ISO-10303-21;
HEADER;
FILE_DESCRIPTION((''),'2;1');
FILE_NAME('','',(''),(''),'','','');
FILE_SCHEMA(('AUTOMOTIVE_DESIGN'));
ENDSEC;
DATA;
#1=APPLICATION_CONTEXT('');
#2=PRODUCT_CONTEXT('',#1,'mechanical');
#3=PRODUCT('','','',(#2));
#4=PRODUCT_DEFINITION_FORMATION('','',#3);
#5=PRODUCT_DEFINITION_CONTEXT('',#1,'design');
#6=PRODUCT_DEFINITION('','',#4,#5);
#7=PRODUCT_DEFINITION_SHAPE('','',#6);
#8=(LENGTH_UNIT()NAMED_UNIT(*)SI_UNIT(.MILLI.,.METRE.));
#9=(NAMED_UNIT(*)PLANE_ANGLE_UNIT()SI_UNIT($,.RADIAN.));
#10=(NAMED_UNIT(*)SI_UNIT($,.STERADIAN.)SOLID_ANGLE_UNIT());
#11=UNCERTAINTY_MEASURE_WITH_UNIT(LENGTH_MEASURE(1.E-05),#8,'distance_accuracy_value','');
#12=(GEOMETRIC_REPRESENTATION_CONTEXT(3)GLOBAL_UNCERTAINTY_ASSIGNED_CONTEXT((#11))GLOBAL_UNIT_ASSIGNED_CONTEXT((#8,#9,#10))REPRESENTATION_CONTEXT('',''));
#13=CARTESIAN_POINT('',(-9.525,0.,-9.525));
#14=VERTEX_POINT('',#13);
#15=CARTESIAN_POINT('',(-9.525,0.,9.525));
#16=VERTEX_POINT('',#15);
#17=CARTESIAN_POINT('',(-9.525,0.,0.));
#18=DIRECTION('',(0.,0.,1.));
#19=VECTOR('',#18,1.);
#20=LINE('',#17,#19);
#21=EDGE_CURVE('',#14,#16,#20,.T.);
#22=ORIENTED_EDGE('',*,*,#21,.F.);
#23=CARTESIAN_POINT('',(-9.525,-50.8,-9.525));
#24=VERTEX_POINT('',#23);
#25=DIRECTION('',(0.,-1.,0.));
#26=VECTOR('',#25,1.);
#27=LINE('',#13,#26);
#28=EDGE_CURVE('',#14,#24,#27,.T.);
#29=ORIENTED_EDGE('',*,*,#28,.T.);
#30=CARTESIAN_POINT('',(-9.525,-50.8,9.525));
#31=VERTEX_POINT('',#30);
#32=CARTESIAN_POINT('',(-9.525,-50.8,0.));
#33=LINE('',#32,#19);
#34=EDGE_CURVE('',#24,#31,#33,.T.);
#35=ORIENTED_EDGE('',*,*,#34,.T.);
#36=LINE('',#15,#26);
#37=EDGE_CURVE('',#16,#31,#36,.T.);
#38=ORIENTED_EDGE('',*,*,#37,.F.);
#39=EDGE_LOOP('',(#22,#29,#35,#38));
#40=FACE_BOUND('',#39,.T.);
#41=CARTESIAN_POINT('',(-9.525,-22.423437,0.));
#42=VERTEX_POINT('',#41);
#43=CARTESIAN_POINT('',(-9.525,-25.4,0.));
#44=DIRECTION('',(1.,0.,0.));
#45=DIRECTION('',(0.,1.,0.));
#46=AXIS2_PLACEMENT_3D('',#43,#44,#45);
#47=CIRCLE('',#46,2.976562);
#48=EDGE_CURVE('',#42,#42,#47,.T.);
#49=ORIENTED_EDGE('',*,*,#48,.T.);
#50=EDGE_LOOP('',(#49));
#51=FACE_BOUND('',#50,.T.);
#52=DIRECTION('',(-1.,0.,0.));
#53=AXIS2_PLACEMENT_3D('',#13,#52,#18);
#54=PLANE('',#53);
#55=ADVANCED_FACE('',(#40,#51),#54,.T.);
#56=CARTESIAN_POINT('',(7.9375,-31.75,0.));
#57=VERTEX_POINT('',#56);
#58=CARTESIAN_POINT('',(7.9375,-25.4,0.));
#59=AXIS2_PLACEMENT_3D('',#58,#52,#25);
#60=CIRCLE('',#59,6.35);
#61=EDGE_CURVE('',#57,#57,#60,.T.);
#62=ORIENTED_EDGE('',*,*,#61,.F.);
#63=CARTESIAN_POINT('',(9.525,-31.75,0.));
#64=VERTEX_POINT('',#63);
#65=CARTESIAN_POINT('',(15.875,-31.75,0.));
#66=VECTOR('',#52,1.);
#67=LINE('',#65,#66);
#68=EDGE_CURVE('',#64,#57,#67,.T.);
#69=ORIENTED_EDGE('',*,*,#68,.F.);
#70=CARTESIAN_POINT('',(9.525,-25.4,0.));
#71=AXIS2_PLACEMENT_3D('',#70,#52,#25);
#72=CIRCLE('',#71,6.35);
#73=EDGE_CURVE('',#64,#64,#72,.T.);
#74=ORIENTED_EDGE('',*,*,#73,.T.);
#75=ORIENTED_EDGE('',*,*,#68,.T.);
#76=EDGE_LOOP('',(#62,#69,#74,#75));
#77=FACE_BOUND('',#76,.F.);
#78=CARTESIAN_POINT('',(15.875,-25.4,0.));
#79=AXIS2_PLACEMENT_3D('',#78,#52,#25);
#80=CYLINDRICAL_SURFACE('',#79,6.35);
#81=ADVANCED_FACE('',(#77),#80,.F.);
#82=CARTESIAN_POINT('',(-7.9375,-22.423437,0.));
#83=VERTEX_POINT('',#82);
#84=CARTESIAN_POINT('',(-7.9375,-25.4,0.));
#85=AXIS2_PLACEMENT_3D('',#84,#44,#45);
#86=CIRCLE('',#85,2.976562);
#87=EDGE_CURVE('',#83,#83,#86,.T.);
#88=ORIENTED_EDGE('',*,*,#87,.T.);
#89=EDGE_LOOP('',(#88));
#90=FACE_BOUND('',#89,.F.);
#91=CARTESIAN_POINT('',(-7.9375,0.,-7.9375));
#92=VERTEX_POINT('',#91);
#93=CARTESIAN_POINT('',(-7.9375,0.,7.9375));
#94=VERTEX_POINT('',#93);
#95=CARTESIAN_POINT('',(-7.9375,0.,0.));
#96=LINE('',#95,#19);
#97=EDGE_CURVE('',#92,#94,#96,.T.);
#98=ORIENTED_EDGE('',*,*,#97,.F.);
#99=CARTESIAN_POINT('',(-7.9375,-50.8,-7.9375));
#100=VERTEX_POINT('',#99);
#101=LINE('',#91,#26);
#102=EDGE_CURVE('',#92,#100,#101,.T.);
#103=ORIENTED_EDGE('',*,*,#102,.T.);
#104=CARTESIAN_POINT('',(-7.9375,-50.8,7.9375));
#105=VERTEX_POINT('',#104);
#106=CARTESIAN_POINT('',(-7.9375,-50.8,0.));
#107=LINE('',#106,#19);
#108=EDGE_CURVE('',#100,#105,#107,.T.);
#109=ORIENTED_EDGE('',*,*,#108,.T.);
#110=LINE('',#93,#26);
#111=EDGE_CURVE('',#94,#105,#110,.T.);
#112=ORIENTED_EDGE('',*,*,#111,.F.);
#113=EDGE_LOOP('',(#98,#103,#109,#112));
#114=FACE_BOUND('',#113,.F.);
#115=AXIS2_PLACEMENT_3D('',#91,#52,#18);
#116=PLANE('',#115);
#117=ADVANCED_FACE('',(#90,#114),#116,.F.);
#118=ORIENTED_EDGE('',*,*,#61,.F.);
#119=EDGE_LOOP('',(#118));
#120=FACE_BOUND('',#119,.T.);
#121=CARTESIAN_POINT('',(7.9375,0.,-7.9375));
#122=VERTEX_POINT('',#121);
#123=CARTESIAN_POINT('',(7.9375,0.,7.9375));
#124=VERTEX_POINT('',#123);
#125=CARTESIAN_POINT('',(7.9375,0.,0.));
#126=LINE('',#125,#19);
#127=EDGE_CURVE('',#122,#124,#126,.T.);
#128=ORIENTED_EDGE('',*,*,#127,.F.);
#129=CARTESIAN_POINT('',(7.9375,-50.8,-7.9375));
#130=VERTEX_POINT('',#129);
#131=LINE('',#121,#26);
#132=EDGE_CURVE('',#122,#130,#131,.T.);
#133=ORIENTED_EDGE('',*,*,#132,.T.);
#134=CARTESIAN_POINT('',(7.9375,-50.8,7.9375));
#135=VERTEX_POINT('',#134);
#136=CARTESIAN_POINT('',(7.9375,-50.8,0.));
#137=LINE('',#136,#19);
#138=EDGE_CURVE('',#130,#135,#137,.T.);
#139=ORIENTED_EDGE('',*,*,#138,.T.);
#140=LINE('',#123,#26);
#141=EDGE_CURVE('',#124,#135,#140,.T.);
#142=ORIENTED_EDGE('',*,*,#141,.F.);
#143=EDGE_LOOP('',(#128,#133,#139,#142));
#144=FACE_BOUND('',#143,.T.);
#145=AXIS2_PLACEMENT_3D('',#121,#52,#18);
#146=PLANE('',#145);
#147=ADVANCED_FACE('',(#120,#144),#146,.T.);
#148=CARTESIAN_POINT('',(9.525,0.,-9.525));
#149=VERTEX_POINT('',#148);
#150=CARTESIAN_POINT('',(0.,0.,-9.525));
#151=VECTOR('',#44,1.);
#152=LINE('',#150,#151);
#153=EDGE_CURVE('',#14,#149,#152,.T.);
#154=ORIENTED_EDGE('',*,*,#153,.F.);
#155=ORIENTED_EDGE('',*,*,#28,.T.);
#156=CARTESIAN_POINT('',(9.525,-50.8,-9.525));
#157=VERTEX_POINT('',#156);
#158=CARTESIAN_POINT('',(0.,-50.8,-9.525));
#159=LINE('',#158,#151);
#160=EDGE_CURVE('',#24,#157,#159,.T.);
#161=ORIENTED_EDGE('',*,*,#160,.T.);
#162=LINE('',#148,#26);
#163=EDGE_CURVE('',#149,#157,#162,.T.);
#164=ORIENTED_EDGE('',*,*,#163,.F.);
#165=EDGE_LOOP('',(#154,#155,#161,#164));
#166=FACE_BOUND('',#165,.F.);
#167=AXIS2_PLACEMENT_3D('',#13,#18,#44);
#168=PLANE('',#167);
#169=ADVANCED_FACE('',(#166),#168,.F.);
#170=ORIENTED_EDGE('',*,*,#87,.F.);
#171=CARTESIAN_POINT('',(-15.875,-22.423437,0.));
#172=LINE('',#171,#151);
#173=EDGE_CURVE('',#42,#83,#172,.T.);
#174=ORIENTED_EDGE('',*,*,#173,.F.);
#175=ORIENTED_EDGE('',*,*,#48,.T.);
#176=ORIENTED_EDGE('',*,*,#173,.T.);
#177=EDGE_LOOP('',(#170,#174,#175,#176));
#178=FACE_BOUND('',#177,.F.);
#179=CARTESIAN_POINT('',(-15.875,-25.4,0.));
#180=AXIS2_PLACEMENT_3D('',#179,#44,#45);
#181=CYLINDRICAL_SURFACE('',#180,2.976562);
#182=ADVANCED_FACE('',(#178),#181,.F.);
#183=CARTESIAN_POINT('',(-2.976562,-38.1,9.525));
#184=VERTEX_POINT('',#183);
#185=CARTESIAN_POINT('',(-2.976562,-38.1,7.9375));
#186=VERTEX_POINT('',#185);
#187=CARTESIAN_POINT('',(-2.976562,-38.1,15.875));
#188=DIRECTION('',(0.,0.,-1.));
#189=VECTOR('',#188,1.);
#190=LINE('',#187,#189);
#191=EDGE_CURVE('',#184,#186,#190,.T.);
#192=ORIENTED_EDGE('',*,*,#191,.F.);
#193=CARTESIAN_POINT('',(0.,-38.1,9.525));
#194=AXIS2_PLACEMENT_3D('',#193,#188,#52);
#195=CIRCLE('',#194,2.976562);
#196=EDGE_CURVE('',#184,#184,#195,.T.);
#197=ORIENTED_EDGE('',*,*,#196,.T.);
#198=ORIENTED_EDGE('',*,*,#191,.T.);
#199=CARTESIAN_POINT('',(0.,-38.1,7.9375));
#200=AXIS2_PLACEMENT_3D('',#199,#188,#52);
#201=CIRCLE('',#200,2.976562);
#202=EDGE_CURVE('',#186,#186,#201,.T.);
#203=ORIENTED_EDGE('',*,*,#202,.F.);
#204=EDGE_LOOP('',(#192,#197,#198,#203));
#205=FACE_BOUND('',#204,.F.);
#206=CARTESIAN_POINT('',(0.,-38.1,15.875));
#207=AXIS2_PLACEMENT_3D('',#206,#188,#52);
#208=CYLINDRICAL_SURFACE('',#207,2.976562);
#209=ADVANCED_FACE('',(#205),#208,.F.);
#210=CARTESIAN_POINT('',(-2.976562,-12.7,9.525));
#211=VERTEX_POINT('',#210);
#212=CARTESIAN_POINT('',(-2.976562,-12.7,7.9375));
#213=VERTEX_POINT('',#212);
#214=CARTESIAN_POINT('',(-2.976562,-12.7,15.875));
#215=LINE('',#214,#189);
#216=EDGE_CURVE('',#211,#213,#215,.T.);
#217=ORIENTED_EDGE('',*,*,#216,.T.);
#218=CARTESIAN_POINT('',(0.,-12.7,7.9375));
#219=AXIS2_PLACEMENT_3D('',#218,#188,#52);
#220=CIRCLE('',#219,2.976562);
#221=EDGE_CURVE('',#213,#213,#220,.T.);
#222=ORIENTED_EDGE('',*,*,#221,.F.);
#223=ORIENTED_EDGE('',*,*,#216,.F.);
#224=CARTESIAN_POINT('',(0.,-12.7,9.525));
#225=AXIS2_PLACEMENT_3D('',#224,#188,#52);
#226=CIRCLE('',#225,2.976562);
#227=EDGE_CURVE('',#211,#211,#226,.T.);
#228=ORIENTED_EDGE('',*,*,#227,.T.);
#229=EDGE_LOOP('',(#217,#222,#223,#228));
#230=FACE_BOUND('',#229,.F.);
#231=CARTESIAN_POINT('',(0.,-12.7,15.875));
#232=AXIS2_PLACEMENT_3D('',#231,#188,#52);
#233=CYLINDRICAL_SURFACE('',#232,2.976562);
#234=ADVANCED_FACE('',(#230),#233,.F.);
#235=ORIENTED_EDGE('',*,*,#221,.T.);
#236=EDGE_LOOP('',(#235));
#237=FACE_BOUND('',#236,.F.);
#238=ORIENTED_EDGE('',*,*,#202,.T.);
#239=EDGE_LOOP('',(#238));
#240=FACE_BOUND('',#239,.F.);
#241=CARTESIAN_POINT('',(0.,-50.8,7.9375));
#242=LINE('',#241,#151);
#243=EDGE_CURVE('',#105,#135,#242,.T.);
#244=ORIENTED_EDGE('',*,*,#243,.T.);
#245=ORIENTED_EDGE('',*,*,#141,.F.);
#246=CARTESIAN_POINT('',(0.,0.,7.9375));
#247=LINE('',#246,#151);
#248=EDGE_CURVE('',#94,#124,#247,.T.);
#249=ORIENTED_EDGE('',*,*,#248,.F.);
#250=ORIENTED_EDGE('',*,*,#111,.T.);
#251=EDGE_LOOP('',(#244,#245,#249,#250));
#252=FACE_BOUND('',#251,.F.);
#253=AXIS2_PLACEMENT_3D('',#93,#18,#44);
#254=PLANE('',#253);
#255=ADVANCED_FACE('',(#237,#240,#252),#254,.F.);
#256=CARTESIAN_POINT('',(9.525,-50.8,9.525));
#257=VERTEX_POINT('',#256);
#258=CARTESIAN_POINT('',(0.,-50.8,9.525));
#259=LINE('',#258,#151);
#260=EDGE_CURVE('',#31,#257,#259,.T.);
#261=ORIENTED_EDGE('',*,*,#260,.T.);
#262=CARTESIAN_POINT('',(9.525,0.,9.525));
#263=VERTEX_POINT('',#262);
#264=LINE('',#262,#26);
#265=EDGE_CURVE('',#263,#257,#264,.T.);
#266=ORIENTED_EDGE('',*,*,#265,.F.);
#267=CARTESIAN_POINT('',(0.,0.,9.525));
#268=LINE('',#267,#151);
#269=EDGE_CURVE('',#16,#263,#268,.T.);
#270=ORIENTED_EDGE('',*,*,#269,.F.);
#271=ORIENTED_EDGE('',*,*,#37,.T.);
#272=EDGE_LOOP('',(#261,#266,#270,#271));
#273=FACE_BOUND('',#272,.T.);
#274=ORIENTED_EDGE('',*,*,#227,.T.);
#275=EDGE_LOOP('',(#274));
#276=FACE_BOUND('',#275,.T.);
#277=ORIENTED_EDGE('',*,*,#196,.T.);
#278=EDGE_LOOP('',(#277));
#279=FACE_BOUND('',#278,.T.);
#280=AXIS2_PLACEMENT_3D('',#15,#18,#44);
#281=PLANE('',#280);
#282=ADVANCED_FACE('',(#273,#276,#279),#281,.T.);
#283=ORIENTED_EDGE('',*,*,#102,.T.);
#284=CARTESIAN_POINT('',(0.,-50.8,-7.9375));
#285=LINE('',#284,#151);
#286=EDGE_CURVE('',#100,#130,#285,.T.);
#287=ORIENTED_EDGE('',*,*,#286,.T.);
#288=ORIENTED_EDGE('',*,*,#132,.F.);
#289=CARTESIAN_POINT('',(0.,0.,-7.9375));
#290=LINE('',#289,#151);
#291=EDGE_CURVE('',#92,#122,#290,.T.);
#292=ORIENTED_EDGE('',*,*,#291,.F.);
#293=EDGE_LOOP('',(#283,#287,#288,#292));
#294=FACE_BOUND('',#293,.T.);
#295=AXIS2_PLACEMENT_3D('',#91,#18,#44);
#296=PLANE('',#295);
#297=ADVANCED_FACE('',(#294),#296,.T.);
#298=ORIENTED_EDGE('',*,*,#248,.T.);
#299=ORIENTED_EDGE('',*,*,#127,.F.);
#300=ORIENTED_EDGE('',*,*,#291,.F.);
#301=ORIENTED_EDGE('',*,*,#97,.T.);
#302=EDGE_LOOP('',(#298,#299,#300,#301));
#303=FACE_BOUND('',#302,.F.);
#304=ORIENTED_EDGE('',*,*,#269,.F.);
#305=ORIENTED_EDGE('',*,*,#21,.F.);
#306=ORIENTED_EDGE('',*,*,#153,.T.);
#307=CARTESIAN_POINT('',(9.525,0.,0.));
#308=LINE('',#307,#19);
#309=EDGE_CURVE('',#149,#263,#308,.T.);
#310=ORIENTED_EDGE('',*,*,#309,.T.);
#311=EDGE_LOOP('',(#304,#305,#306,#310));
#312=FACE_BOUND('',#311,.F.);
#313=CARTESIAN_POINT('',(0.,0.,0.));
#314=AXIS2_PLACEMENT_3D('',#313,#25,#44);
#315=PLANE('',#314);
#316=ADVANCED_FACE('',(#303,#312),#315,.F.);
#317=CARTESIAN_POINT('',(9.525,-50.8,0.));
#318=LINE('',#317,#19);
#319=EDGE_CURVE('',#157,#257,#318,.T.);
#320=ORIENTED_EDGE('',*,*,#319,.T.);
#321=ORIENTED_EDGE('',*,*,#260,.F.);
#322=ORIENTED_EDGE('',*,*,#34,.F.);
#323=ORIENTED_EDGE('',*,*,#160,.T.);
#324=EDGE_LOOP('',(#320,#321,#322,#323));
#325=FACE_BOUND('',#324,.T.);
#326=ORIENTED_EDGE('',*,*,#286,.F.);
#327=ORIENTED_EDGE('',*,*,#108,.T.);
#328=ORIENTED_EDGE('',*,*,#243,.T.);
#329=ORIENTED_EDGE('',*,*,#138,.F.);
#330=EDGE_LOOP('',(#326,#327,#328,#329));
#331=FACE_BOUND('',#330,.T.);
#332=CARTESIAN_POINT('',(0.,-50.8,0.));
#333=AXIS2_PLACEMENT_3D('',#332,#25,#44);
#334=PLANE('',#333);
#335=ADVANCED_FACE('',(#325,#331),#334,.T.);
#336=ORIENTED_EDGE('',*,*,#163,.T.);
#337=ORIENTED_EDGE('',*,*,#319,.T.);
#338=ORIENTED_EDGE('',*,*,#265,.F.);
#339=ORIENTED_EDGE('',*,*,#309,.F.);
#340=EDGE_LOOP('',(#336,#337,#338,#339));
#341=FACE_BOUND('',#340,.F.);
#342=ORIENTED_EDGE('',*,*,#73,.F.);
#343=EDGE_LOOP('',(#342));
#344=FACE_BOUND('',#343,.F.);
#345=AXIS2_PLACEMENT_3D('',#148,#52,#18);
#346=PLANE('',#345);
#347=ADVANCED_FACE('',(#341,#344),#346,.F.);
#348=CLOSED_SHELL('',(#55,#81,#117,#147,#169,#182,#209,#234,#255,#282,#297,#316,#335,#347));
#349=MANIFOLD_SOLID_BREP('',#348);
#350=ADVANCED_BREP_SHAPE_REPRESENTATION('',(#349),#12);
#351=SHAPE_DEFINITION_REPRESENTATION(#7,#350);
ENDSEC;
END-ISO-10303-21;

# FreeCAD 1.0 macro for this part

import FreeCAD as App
import Part
import Sketcher
from FreeCAD import Vector
Q = App.Units.Quantity

doc = App.newDocument("Part")
body = doc.addObject("PartDesign::Body", "Body")

# Sketch on XZ plane
sketch1 = body.newObject("Sketcher::SketchObject", "Sketch")
sketch1.AttachmentSupport = (doc.getObject("XZ_Plane"), [""])
sketch1.MapMode = "FlatFace"
sketch1.addGeometry([
    Part.LineSegment(Vector(-10, 10, 0), Vector(-10, -10, 0)),  # 0
    Part.LineSegment(Vector(-10, -10, 0), Vector(10, -10, 0)),  # 1
    Part.LineSegment(Vector(10, -10, 0), Vector(10, 10, 0)),  # 2
    Part.LineSegment(Vector(10, 10, 0), Vector(-10, 10, 0)),  # 3
    Part.LineSegment(Vector(8, -8, 0), Vector(-8, -8, 0)),  # 4
    Part.LineSegment(Vector(-8, -8, 0), Vector(-8, 8, 0)),  # 5
    Part.LineSegment(Vector(-8, 8, 0), Vector(8, 8, 0)),  # 6
    Part.LineSegment(Vector(8, 8, 0), Vector(8, -8, 0)),  # 7
], False)
sketch1.addConstraint([
    Sketcher.Constraint("Coincident", 0, 2, 1, 1),
    Sketcher.Constraint("Coincident", 1, 2, 2, 1),
    Sketcher.Constraint("Coincident", 2, 2, 3, 1),
    Sketcher.Constraint("Coincident", 3, 2, 0, 1),
    Sketcher.Constraint("Coincident", 4, 2, 5, 1),
    Sketcher.Constraint("Coincident", 5, 2, 6, 1),
    Sketcher.Constraint("Coincident", 6, 2, 7, 1),
    Sketcher.Constraint("Coincident", 7, 2, 4, 1),
    Sketcher.Constraint("Vertical", 0),
    Sketcher.Constraint("Horizontal", 1),
    Sketcher.Constraint("Vertical", 2),
    Sketcher.Constraint("Horizontal", 3),
    Sketcher.Constraint("Horizontal", 4),
    Sketcher.Constraint("Vertical", 5),
    Sketcher.Constraint("Horizontal", 6),
    Sketcher.Constraint("Vertical", 7),
    Sketcher.Constraint("Symmetric", 0, 2, 2, 2, -1, 1),
    Sketcher.Constraint("Symmetric", 4, 2, 6, 2, -1, 1),
    Sketcher.Constraint("Equal", 3, 0),
    Sketcher.Constraint("Equal", 6, 5),
    Sketcher.Constraint("DistanceX", 1, 1, 1, 2, Q("0.75 in")),
    Sketcher.Constraint("DistanceX", 4, 2, 4, 1, Q("0.625 in")),
])
pad1 = body.newObject("PartDesign::Pad", "Pad")
pad1.Profile = sketch1
pad1.Length = Q("2 in")

# Sketch on YZ plane
sketch2 = body.newObject("Sketcher::SketchObject", "Sketch001")
sketch2.AttachmentSupport = (doc.getObject("YZ_Plane"), [""])
sketch2.MapMode = "FlatFace"
sketch2.AttachmentOffset = App.Placement(Vector(0, 0, -0.375 * 25.4), App.Rotation())
sketch2.addGeometry(Part.Circle(Vector(-25.4, 0, 0), Vector(0, 0, 1), 3), False)
sketch2.addConstraint([
    Sketcher.Constraint("PointOnObject", 0, 3, -1),
    Sketcher.Constraint("Diameter", 0, Q("0.234375 in")),
    Sketcher.Constraint("DistanceX", 0, 3, -1, 1, Q("1 in")),
])
doc.recompute()
hole = body.newObject("PartDesign::Hole", "Hole")
hole.Profile = sketch2
hole.ThreadType = "None"
hole.Diameter = Q("0.234375 in")
hole.DepthType = "Dimension"
hole.Depth = Q("0.25 in")
hole.DrillPoint = "Flat"
hole.Reversed = True

# Sketch on YZ plane
sketch3 = body.newObject("Sketcher::SketchObject", "Sketch002")
sketch3.AttachmentSupport = (doc.getObject("YZ_Plane"), [""])
sketch3.MapMode = "FlatFace"
sketch3.AttachmentOffset = App.Placement(Vector(0, 0, 0.375 * 25.4), App.Rotation())
sketch3.addGeometry(Part.Circle(Vector(-25, 0, 0), Vector(0, 0, 1), 6), False)
sketch3.addConstraint([
    Sketcher.Constraint("PointOnObject", 0, 3, -1),
    Sketcher.Constraint("Diameter", 0, Q("0.5 in")),
    Sketcher.Constraint("DistanceX", 0, 3, -1, 1, Q("1 in")),
])
doc.recompute()
hole2 = body.newObject("PartDesign::Hole", "Hole001")
hole2.Profile = sketch3
hole2.ThreadType = "None"
hole2.Diameter = Q("0.5 in")
hole2.DepthType = "Dimension"
hole2.Depth = Q("0.25 in")
hole2.DrillPoint = "Flat"

# Sketch on XY plane
sketch4 = body.newObject("Sketcher::SketchObject", "Sketch003")
sketch4.AttachmentSupport = (doc.getObject("XY_Plane"), [""])
sketch4.MapMode = "FlatFace"
sketch4.AttachmentOffset = App.Placement(Vector(0, 0, 0.375 * 25.4), App.Rotation())
sketch4.addGeometry([
    Part.Circle(Vector(0, -12.7, 0), Vector(0, 0, 1), 3),
    Part.Circle(Vector(0, -38.1, 0), Vector(0, 0, 1), 3),
], False)
sketch4.addConstraint([
    Sketcher.Constraint("Equal", 0, 1),
    Sketcher.Constraint("PointOnObject", 0, 3, -2),
    Sketcher.Constraint("PointOnObject", 1, 3, -2),
    Sketcher.Constraint("Diameter", 0, Q("0.234375 in")),
    Sketcher.Constraint("DistanceY", 1, 3, 0, 3, Q("1 in")),
    Sketcher.Constraint("DistanceY", 0, 3, -1, 1, Q("0.5 in")),
])
doc.recompute()
hole3 = body.newObject("PartDesign::Hole", "Hole002")
hole3.Profile = sketch4
hole3.ThreadType = "None"
hole3.Diameter = Q("0.234375 in")
hole3.DepthType = "Dimension"
hole3.Depth = Q("0.25 in")
hole3.DrillPoint = "Flat"

doc.recompute()
